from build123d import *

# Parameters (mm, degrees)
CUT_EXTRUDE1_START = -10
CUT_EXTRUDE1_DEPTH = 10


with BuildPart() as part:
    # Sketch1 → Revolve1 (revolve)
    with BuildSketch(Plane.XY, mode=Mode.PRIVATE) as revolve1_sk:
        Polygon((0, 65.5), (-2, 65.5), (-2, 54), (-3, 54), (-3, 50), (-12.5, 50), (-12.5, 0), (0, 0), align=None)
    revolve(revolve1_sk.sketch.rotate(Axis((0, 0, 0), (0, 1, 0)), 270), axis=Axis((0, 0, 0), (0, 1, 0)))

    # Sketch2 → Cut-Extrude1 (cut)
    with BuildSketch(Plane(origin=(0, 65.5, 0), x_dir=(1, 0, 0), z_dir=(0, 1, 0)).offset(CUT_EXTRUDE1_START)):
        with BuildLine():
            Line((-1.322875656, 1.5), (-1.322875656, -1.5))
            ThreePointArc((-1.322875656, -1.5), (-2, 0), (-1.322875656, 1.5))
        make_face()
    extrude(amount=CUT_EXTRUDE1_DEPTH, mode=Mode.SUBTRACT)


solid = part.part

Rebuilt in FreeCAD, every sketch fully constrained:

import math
import FreeCAD as App
import Part
import Sketcher
Q = App.Units.Quantity

doc = App.newDocument("Part")
body = doc.addObject("PartDesign::Body", "Body")

# Sketch on XY plane
sketch1 = doc.addObject("Sketcher::SketchObject", "Sketch")
body.addObject(sketch1)
sketch1.AttachmentSupport = (doc.XY_Plane, [""])
sketch1.MapMode = "FlatFace"
sketch1.addGeometry([
    Part.LineSegment(App.Vector(0, 65.5, 0), App.Vector(-2, 65.5, 0)),  # 0
    Part.LineSegment(App.Vector(-2, 65.5, 0), App.Vector(-2, 54, 0)),  # 1
    Part.LineSegment(App.Vector(-2, 54, 0), App.Vector(-3, 54, 0)),  # 2
    Part.LineSegment(App.Vector(-3, 54, 0), App.Vector(-3, 50, 0)),  # 3
    Part.LineSegment(App.Vector(-3, 50, 0), App.Vector(-12.5, 50, 0)),  # 4
    Part.LineSegment(App.Vector(-12.5, 50, 0), App.Vector(-12.5, 0, 0)),  # 5
    Part.LineSegment(App.Vector(-12.5, 0, 0), App.Vector(0, 0, 0)),  # 6
    Part.LineSegment(App.Vector(0, 0, 0), App.Vector(0, 65.5, 0)),  # 7
], False)
sketch1.addConstraint([
    Sketcher.Constraint("Coincident", 0, 2, 1, 1),
    Sketcher.Constraint("Coincident", 1, 2, 2, 1),
    Sketcher.Constraint("Coincident", 2, 2, 3, 1),
    Sketcher.Constraint("Coincident", 3, 2, 4, 1),
    Sketcher.Constraint("Coincident", 4, 2, 5, 1),
    Sketcher.Constraint("Coincident", 5, 2, 6, 1),
    Sketcher.Constraint("Coincident", 6, 2, 7, 1),
    Sketcher.Constraint("Coincident", 7, 2, 0, 1),
    Sketcher.Constraint("Horizontal", 0),
    Sketcher.Constraint("Vertical", 1),
    Sketcher.Constraint("Horizontal", 2),
    Sketcher.Constraint("Vertical", 3),
    Sketcher.Constraint("Horizontal", 4),
    Sketcher.Constraint("Vertical", 5),
    Sketcher.Constraint("Horizontal", 6),
    Sketcher.Constraint("Vertical", 7),
    Sketcher.Constraint("Coincident", 6, 2, -1, 1),
    Sketcher.Constraint("DistanceX", 0, 2, 0, 1, Q("2 mm")),
    Sketcher.Constraint("DistanceX", 2, 2, 2, 1, Q("1 mm")),
    Sketcher.Constraint("DistanceY", 3, 2, 3, 1, Q("4 mm")),
    Sketcher.Constraint("DistanceY", 5, 2, 5, 1, Q("50 mm")),
    Sketcher.Constraint("DistanceX", 4, 2, 4, 1, Q("9.5 mm")),
    Sketcher.Constraint("DistanceY", 1, 2, 1, 1, Q("11.5 mm")),
])
revolution = doc.addObject("PartDesign::Revolution", "Revolution")
body.addObject(revolution)
revolution.Profile = sketch1
revolution.ReferenceAxis = (sketch1, ["V_Axis"])
revolution.Angle = 360

# Sketch on XZ plane
sketch2 = doc.addObject("Sketcher::SketchObject", "Sketch001")
body.addObject(sketch2)
sketch2.AttachmentSupport = (doc.XZ_Plane, [""])
sketch2.MapMode = "FlatFace"
sketch2.AttachmentOffset = App.Placement(App.Vector(0, 0, -55.5), App.Rotation())
sketch2.addGeometry([
    Part.LineSegment(App.Vector(-1.3, 1.5, 0), App.Vector(-1.3, -1.5, 0)),
    Part.ArcOfCircle(Part.Circle(App.Vector(0, 0, 0), App.Vector(0, 0, 1), 2), math.radians(131), math.radians(229)),
], False)
sketch2.addConstraint([
    Sketcher.Constraint("Coincident", 0, 1, 1, 1),
    Sketcher.Constraint("Coincident", 1, 2, 0, 2),
    Sketcher.Constraint("Vertical", 0),
    Sketcher.Constraint("Coincident", 1, 3, -1, 1),
    Sketcher.Constraint("Radius", 1, Q("2 mm")),
    Sketcher.Constraint("DistanceY", 0, 2, 0, 1, Q("3 mm")),
])
pocket1 = doc.addObject("PartDesign::Pocket", "Pocket")
body.addObject(pocket1)
pocket1.Profile = sketch2
pocket1.Length = 10

doc.recompute()
